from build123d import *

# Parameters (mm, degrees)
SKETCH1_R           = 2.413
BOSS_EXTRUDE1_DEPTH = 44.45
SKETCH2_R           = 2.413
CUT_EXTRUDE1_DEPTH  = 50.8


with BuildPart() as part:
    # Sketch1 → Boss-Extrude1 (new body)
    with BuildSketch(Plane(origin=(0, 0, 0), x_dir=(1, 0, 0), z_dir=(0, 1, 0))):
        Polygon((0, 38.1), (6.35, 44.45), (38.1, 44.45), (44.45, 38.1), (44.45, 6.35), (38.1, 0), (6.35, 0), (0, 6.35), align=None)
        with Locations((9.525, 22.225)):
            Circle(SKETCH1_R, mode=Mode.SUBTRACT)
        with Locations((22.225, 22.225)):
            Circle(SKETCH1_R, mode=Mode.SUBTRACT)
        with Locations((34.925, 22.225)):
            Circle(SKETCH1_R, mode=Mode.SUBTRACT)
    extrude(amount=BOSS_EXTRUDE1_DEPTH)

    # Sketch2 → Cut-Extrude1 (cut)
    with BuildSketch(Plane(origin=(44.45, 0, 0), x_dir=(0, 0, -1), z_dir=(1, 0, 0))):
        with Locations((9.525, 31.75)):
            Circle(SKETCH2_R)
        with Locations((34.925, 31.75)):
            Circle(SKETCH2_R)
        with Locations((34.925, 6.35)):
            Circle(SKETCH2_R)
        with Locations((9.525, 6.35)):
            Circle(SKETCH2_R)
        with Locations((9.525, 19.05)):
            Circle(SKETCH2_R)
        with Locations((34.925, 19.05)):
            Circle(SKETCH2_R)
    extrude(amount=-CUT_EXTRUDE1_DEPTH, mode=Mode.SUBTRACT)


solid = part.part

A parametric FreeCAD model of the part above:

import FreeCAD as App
import Part
import Sketcher
Q = App.Units.Quantity


def add_polygon(sketch, points):
    """Adds a closed chain of lines whose ends are joined by coincident constraints."""
    first, n = sketch.GeometryCount, len(points)
    for a, b in zip(points, points[1:] + points[:1]):
        sketch.addGeometry(Part.LineSegment(App.Vector(*a, 0), App.Vector(*b, 0)), False)
    for i in range(n):
        sketch.addConstraint(Sketcher.Constraint("Coincident", first + i, 2, first + (i + 1) % n, 1))

doc = App.newDocument("Part")
body = doc.addObject("PartDesign::Body", "Body")

# Sketch on XZ plane
sketch1 = doc.addObject("Sketcher::SketchObject", "Sketch")
body.addObject(sketch1)
sketch1.AttachmentSupport = (doc.XZ_Plane, [""])
sketch1.MapMode = "FlatFace"
add_polygon(sketch1, [(6.3, -44.5), (0, -38.1), (0, -6.3), (6.3, 0), (38.1, 0), (44.5, -6.3), (44.5, -38.1), (38.1, -44.5)])  # lines 0-7
sketch1.addGeometry(Part.Circle(App.Vector(34.9, -22.2, 0), App.Vector(0, 0, 1), 2.4), False)  # 8
sketch1.addGeometry(Part.Circle(App.Vector(22.2, -22.2, 0), App.Vector(0, 0, 1), 2.4), False)  # 9
sketch1.addGeometry(Part.Circle(App.Vector(9.5, -22.2, 0), App.Vector(0, 0, 1), 2.4), False)  # 10
sketch1.addConstraint(Sketcher.Constraint("Vertical", 1))
sketch1.addConstraint(Sketcher.Constraint("Horizontal", 3))
sketch1.addConstraint(Sketcher.Constraint("Vertical", 5))
sketch1.addConstraint(Sketcher.Constraint("Horizontal", 7))
sketch1.addConstraint(Sketcher.Constraint("Equal", 8, 9))
sketch1.addConstraint(Sketcher.Constraint("Equal", 9, 10))
sketch1.addConstraint(Sketcher.Constraint("PointOnObject", 0, 2, -2))
sketch1.addConstraint(Sketcher.Constraint("PointOnObject", 2, 2, -1))
sketch1.addConstraint(Sketcher.Constraint("Perpendicular", 0, 2))
sketch1.addConstraint(Sketcher.Constraint("Perpendicular", 2, 4))
sketch1.addConstraint(Sketcher.Constraint("Perpendicular", 4, 6))
sketch1.addConstraint(Sketcher.Constraint("Horizontal", 8, 3, 9, 3))
sketch1.addConstraint(Sketcher.Constraint("Horizontal", 9, 3, 10, 3))
sketch1.addConstraint(Sketcher.Constraint("Horizontal", 1, 2, 4, 2))
sketch1.addConstraint(Sketcher.Constraint("Horizontal", 0, 2, 5, 2))
sketch1.addConstraint(Sketcher.Constraint("Vertical", 3, 2, 6, 2))
sketch1.addConstraint(Sketcher.Constraint("Vertical", 2, 2, 7, 2))
sketch1.addConstraint(Sketcher.Constraint("Equal", 7, 1))
sketch1.addConstraint(Sketcher.Constraint("Diameter", 8, Q("0.19 in")))
sketch1.addConstraint(Sketcher.Constraint("DistanceX", 10, 3, 8, 3, Q("1 in")))
sketch1.addConstraint(Sketcher.Constraint("DistanceX", 3, 1, 3, 2, Q("1.25 in")))
sketch1.addConstraint(Sketcher.Constraint("DistanceY", 0, 2, -1, 1, Q("1.5 in")))
sketch1.addConstraint(Sketcher.Constraint("DistanceX", 9, 3, 8, 3, Q("0.5 in")))
sketch1.addConstraint(Sketcher.Constraint("DistanceX", -1, 1, 8, 3, Q("1.375 in")))
sketch1.addConstraint(Sketcher.Constraint("DistanceY", 8, 3, -1, 1, Q("0.875 in")))
pad1 = doc.addObject("PartDesign::Pad", "Pad")
body.addObject(pad1)
pad1.Profile = sketch1
pad1.Length = Q("1.75 in")
pad1.Reversed = True

# Sketch on YZ plane
sketch2 = doc.addObject("Sketcher::SketchObject", "Sketch001")
body.addObject(sketch2)
sketch2.AttachmentSupport = (doc.YZ_Plane, [""])
sketch2.MapMode = "FlatFace"
sketch2.AttachmentOffset = App.Placement(App.Vector(0, 0, 1.75 * 25.4), App.Rotation())
sketch2.addGeometry(Part.Circle(App.Vector(31.8, -9.5, 0), App.Vector(0, 0, 1), 2.4), False)
sketch2.addGeometry(Part.Circle(App.Vector(31.8, -34.9, 0), App.Vector(0, 0, 1), 2.4), False)
sketch2.addGeometry(Part.Circle(App.Vector(6.3, -34.9, 0), App.Vector(0, 0, 1), 2.4), False)
sketch2.addGeometry(Part.Circle(App.Vector(6.3, -9.5, 0), App.Vector(0, 0, 1), 2.4), False)
sketch2.addGeometry(Part.Circle(App.Vector(19.1, -9.5, 0), App.Vector(0, 0, 1), 2.4), False)
sketch2.addGeometry(Part.Circle(App.Vector(19.1, -34.9, 0), App.Vector(0, 0, 1), 2.4), False)
sketch2.addConstraint(Sketcher.Constraint("Equal", 0, 1))
sketch2.addConstraint(Sketcher.Constraint("Equal", 1, 2))
sketch2.addConstraint(Sketcher.Constraint("Equal", 2, 3))
sketch2.addConstraint(Sketcher.Constraint("Equal", 3, 4))
sketch2.addConstraint(Sketcher.Constraint("Equal", 4, 5))
sketch2.addConstraint(Sketcher.Constraint("Horizontal", 1, 3, 2, 3))
sketch2.addConstraint(Sketcher.Constraint("Horizontal", 0, 3, 3, 3))
sketch2.addConstraint(Sketcher.Constraint("Horizontal", 3, 3, 4, 3))
sketch2.addConstraint(Sketcher.Constraint("Horizontal", 2, 3, 5, 3))
sketch2.addConstraint(Sketcher.Constraint("Vertical", 0, 3, 1, 3))
sketch2.addConstraint(Sketcher.Constraint("Vertical", 2, 3, 3, 3))
sketch2.addConstraint(Sketcher.Constraint("Vertical", 4, 3, 5, 3))
sketch2.addConstraint(Sketcher.Constraint("Diameter", 0, Q("0.19 in")))
sketch2.addConstraint(Sketcher.Constraint("DistanceY", 1, 3, 0, 3, Q("1 in")))
sketch2.addConstraint(Sketcher.Constraint("DistanceX", 2, 3, 1, 3, Q("1 in")))
sketch2.addConstraint(Sketcher.Constraint("DistanceX", 4, 3, 0, 3, Q("0.5 in")))
sketch2.addConstraint(Sketcher.Constraint("DistanceX", -1, 1, 0, 3, Q("1.25 in")))
sketch2.addConstraint(Sketcher.Constraint("DistanceY", 0, 3, -1, 1, Q("0.375 in")))
pocket1 = doc.addObject("PartDesign::Pocket", "Pocket")
body.addObject(pocket1)
pocket1.Profile = sketch2
pocket1.Length = Q("2 in")

doc.recompute()
